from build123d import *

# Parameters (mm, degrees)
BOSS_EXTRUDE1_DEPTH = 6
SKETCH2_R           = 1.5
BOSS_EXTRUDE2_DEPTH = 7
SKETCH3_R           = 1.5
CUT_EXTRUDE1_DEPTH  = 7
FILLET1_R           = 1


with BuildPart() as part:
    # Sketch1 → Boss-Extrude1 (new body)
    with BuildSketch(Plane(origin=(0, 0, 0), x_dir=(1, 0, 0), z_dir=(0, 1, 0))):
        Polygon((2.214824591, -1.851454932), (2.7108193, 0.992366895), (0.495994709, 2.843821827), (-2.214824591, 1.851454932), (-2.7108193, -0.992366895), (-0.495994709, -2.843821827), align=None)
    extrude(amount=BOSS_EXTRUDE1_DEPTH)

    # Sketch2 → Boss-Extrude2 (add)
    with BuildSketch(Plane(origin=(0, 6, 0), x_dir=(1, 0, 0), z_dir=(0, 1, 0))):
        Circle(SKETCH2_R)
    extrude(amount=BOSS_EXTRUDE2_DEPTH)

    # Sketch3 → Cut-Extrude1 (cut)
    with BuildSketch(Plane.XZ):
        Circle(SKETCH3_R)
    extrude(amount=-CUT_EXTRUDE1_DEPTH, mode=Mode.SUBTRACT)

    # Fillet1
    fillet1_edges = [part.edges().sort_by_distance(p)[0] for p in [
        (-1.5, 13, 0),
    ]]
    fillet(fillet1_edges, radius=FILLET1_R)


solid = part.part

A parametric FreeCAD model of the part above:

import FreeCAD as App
import Part
import Sketcher

V = App.Vector
Q = App.Units.Quantity


def edges_at(feature, points):
    """Names of the edges that pass closest to the given points."""
    edges = feature.Shape.Edges
    near = lambda p: min(range(len(edges)), key=lambda i: edges[i].distToShape(Part.Vertex(*p))[0])
    return sorted({f"Edge{near(p) + 1}" for p in points})

doc = App.newDocument("Part")
body = doc.addObject("PartDesign::Body", "Body")
body.AllowCompound = True

# Sketch on XZ plane
sketch1 = body.newObject("Sketcher::SketchObject", "Sketch")
sketch1.AttachmentSupport = (doc.getObject("XZ_Plane"), [""])
sketch1.MapMode = "FlatFace"
sketch1.addGeometry(Part.LineSegment(V(2.2, 1.9, 0), V(2.7, -1, 0)), False)
sketch1.addGeometry(Part.LineSegment(V(2.7, -1, 0), V(0.5, -2.8, 0)), False)
sketch1.addGeometry(Part.LineSegment(V(0.5, -2.8, 0), V(-2.2, -1.9, 0)), False)
sketch1.addGeometry(Part.LineSegment(V(-2.2, -1.9, 0), V(-2.7, 1, 0)), False)
sketch1.addGeometry(Part.LineSegment(V(-2.7, 1, 0), V(-0.5, 2.8, 0)), False)
sketch1.addGeometry(Part.LineSegment(V(-0.5, 2.8, 0), V(2.2, 1.9, 0)), False)
sketch1.addConstraint(Sketcher.Constraint("Coincident", 0, 2, 1, 1))
sketch1.addConstraint(Sketcher.Constraint("Coincident", 1, 2, 2, 1))
sketch1.addConstraint(Sketcher.Constraint("Coincident", 2, 2, 3, 1))
sketch1.addConstraint(Sketcher.Constraint("Coincident", 3, 2, 4, 1))
sketch1.addConstraint(Sketcher.Constraint("Coincident", 4, 2, 5, 1))
sketch1.addConstraint(Sketcher.Constraint("Coincident", 5, 2, 0, 1))
sketch1.addConstraint(Sketcher.Constraint("Symmetric", 0, 2, 3, 2, -1, 1))
sketch1.addConstraint(Sketcher.Constraint("Symmetric", 1, 2, 4, 2, -1, 1))
sketch1.addConstraint(Sketcher.Constraint("Symmetric", 2, 2, 5, 2, -1, 1))
sketch1.addConstraint(Sketcher.Constraint("Equal", 0, 1))
sketch1.addConstraint(Sketcher.Constraint("Equal", 1, 2))
sketch1.addConstraint(Sketcher.Constraint("Distance", 0, Q("2.886751 mm")))
sketch1.addConstraint(Sketcher.Constraint("DistanceX", -1, 1, 0, 2, Q("2.710819 mm")))
sketch1.addConstraint(Sketcher.Constraint("DistanceY", 1, 2, -1, 1, Q("2.843822 mm")))
sketch1.addConstraint(Sketcher.Constraint("DistanceX", 2, 2, 1, 2, Q("2.710819 mm")))
pad1 = body.newObject("PartDesign::Pad", "Pad")
pad1.Profile = sketch1
pad1.Length = 6
pad1.Reversed = True

# Sketch on XZ plane
sketch2 = body.newObject("Sketcher::SketchObject", "Sketch001")
sketch2.AttachmentSupport = (doc.getObject("XZ_Plane"), [""])
sketch2.MapMode = "FlatFace"
sketch2.AttachmentOffset = App.Placement(V(0, 0, -6), App.Rotation())
sketch2.addGeometry(Part.Circle(V(0, 0, 0), V(0, 0, 1), 1.5), False)
sketch2.addConstraint(Sketcher.Constraint("Coincident", 0, 3, -1, 1))
sketch2.addConstraint(Sketcher.Constraint("Diameter", 0, Q("3 mm")))
pad2 = body.newObject("PartDesign::Pad", "Pad001")
pad2.Profile = sketch2
pad2.Length = 7
pad2.Reversed = True

# Sketch on XZ plane
sketch3 = body.newObject("Sketcher::SketchObject", "Sketch002")
sketch3.AttachmentSupport = (doc.getObject("XZ_Plane"), [""])
sketch3.MapMode = "FlatFace"
sketch3.addGeometry(Part.Circle(V(0, 0, 0), V(0, 0, 1), 1.5), False)
sketch3.addConstraint(Sketcher.Constraint("Coincident", 0, 3, -1, 1))
sketch3.addConstraint(Sketcher.Constraint("Diameter", 0, Q("3 mm")))
pocket1 = body.newObject("PartDesign::Pocket", "Pocket")
pocket1.Profile = sketch3
pocket1.Length = 7
doc.recompute()

fillet = body.newObject("PartDesign::Fillet", "Fillet")
fillet.Base = (pocket1, edges_at(pocket1, [(-1.5, 13, 0)]))
fillet.Radius = 1

doc.recompute()
